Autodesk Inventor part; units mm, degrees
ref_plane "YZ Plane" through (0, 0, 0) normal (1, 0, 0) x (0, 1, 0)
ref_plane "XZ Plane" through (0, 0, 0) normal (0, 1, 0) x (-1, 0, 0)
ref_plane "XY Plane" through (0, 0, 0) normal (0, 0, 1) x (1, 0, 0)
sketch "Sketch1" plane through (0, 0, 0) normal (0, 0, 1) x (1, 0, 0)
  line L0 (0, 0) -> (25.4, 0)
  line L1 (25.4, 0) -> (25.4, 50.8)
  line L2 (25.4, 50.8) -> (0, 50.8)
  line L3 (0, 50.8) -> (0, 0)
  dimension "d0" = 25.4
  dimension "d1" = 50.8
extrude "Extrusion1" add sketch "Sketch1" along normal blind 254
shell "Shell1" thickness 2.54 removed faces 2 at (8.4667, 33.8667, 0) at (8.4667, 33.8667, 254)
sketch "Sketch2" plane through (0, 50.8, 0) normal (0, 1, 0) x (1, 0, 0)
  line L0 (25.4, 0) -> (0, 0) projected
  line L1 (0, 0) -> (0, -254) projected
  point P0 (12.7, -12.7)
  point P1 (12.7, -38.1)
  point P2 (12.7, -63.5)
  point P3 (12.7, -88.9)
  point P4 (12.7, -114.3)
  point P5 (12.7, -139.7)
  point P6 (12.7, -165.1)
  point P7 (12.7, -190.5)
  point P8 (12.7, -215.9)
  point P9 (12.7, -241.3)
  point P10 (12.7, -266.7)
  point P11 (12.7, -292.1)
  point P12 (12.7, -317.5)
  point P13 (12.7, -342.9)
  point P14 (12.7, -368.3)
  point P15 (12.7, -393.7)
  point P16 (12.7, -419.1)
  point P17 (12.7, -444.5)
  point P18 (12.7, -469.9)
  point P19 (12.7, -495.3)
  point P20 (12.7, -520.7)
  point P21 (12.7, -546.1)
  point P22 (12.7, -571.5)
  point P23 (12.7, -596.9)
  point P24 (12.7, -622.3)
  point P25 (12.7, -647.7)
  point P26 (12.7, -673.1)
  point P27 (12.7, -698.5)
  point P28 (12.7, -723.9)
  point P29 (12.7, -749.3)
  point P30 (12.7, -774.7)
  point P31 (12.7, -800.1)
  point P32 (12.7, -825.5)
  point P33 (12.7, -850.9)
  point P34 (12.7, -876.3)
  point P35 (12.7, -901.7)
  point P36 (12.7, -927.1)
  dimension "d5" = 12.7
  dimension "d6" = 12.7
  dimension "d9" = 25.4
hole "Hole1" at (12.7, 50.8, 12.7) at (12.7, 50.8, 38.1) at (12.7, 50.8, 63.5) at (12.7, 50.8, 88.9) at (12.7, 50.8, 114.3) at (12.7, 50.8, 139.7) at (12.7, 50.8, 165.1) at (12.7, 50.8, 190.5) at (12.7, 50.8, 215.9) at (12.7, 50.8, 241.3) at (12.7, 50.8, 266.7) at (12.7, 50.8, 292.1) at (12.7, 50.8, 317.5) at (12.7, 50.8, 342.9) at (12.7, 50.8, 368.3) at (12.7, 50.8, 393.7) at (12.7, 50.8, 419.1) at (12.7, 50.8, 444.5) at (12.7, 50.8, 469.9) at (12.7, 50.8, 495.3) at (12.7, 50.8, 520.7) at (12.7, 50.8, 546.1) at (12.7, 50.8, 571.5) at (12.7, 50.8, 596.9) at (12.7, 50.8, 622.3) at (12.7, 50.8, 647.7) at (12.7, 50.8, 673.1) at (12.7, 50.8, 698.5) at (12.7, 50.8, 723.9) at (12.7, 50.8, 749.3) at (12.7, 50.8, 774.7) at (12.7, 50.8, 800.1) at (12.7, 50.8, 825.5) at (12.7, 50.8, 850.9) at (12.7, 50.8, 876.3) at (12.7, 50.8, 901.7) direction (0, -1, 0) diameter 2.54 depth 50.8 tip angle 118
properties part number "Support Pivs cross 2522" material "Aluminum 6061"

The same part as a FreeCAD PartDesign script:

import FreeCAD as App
import Part
import Sketcher

V = App.Vector
Q = App.Units.Quantity


def faces_at(feature, points):
    """Names of the faces that lie closest to the given points."""
    faces = feature.Shape.Faces
    near = lambda p: min(range(len(faces)), key=lambda i: faces[i].distToShape(Part.Vertex(*p))[0])
    return sorted({f"Face{near(p) + 1}" for p in points})

doc = App.newDocument("Part")
body = doc.addObject("PartDesign::Body", "Body")

# Sketch on XY plane
sketch1 = body.newObject("Sketcher::SketchObject", "Sketch")
sketch1.AttachmentSupport = (doc.getObject("XY_Plane"), [""])
sketch1.MapMode = "FlatFace"
sketch1.addGeometry([
    Part.LineSegment(V(0, 51, 0), V(0, 0, 0)),
    Part.LineSegment(V(0, 0, 0), V(25, 0, 0)),
    Part.LineSegment(V(25, 0, 0), V(25, 51, 0)),
    Part.LineSegment(V(25, 51, 0), V(0, 51, 0)),
], False)
sketch1.addConstraint([
    Sketcher.Constraint("Coincident", 0, 2, 1, 1),
    Sketcher.Constraint("Coincident", 1, 2, 2, 1),
    Sketcher.Constraint("Coincident", 2, 2, 3, 1),
    Sketcher.Constraint("Coincident", 3, 2, 0, 1),
    Sketcher.Constraint("Vertical", 0),
    Sketcher.Constraint("Horizontal", 1),
    Sketcher.Constraint("Vertical", 2),
    Sketcher.Constraint("Horizontal", 3),
    Sketcher.Constraint("Coincident", 0, 2, -1, 1),
    Sketcher.Constraint("DistanceX", 1, 1, 1, 2, Q("1 in")),
    Sketcher.Constraint("DistanceY", 0, 2, 0, 1, Q("2 in")),
])
pad1 = body.newObject("PartDesign::Pad", "Pad")
pad1.Profile = sketch1
pad1.Length = Q("10 in")
doc.recompute()

thickness = body.newObject("PartDesign::Thickness", "Thickness")
thickness.Base = (pad1, faces_at(pad1, [(8.467, 33.867, 0), (8.467, 33.867, 254)]))
thickness.Value = Q("0.1 in")
thickness.Reversed = True
thickness.Join = "Intersection"

# Sketch on XZ plane
sketch2 = body.newObject("Sketcher::SketchObject", "Sketch001")
sketch2.AttachmentSupport = (doc.getObject("XZ_Plane"), [""])
sketch2.MapMode = "FlatFace"
sketch2.AttachmentOffset = App.Placement(V(0, 0, -2 * 25.4), App.Rotation())
sketch2.addGeometry([
    Part.Circle(V(12.7, 12.7, 0), V(0, 0, 1), 1.3),  # 0
    Part.Circle(V(12.7, 38.1, 0), V(0, 0, 1), 1.3),  # 1
    Part.Circle(V(12.7, 63.5, 0), V(0, 0, 1), 1.3),  # 2
    Part.Circle(V(12.7, 88.9, 0), V(0, 0, 1), 1.3),  # 3
    Part.Circle(V(12.7, 114.3, 0), V(0, 0, 1), 1.3),  # 4
    Part.Circle(V(12.7, 139.7, 0), V(0, 0, 1), 1.3),  # 5
    Part.Circle(V(12.7, 165.1, 0), V(0, 0, 1), 1.3),  # 6
    Part.Circle(V(12.7, 190.5, 0), V(0, 0, 1), 1.3),  # 7
    Part.Circle(V(12.7, 215.9, 0), V(0, 0, 1), 1.3),  # 8
    Part.Circle(V(12.7, 241.3, 0), V(0, 0, 1), 1.3),  # 9
    Part.Circle(V(12.7, 266.7, 0), V(0, 0, 1), 1.3),  # 10
    Part.Circle(V(12.7, 292.1, 0), V(0, 0, 1), 1.3),  # 11
    Part.Circle(V(12.7, 317.5, 0), V(0, 0, 1), 1.3),  # 12
    Part.Circle(V(12.7, 342.9, 0), V(0, 0, 1), 1.3),  # 13
    Part.Circle(V(12.7, 368.3, 0), V(0, 0, 1), 1.3),  # 14
    Part.Circle(V(12.7, 393.7, 0), V(0, 0, 1), 1.3),  # 15
    Part.Circle(V(12.7, 419.1, 0), V(0, 0, 1), 1.3),  # 16
    Part.Circle(V(12.7, 444.5, 0), V(0, 0, 1), 1.3),  # 17
    Part.Circle(V(12.7, 469.9, 0), V(0, 0, 1), 1.3),  # 18
    Part.Circle(V(12.7, 495.3, 0), V(0, 0, 1), 1.3),  # 19
    Part.Circle(V(12.7, 520.7, 0), V(0, 0, 1), 1.3),  # 20
    Part.Circle(V(12.7, 546.1, 0), V(0, 0, 1), 1.3),  # 21
    Part.Circle(V(12.7, 571.5, 0), V(0, 0, 1), 1.3),  # 22
    Part.Circle(V(12.7, 596.9, 0), V(0, 0, 1), 1.3),  # 23
    Part.Circle(V(12.7, 622.3, 0), V(0, 0, 1), 1.3),  # 24
    Part.Circle(V(12.7, 647.7, 0), V(0, 0, 1), 1.3),  # 25
    Part.Circle(V(12.7, 673.1, 0), V(0, 0, 1), 1.3),  # 26
    Part.Circle(V(12.7, 698.5, 0), V(0, 0, 1), 1.3),  # 27
    Part.Circle(V(12.7, 723.9, 0), V(0, 0, 1), 1.3),  # 28
    Part.Circle(V(12.7, 749.3, 0), V(0, 0, 1), 1.3),  # 29
    Part.Circle(V(12.7, 774.7, 0), V(0, 0, 1), 1.3),  # 30
    Part.Circle(V(12.7, 800.1, 0), V(0, 0, 1), 1.3),  # 31
    Part.Circle(V(12.7, 825.5, 0), V(0, 0, 1), 1.3),  # 32
    Part.Circle(V(12.7, 850.9, 0), V(0, 0, 1), 1.3),  # 33
    Part.Circle(V(12.7, 876.3, 0), V(0, 0, 1), 1.3),  # 34
    Part.Circle(V(12.7, 901.7, 0), V(0, 0, 1), 1.3),  # 35
], False)
sketch2.addConstraint([
    Sketcher.Constraint("Equal", 0, 1),
    Sketcher.Constraint("Equal", 1, 2),
    Sketcher.Constraint("Equal", 2, 3),
    Sketcher.Constraint("Equal", 3, 4),
    Sketcher.Constraint("Equal", 4, 5),
    Sketcher.Constraint("Equal", 5, 6),
    Sketcher.Constraint("Equal", 6, 7),
    Sketcher.Constraint("Equal", 7, 8),
    Sketcher.Constraint("Equal", 8, 9),
    Sketcher.Constraint("Equal", 9, 10),
    Sketcher.Constraint("Equal", 10, 11),
    Sketcher.Constraint("Equal", 11, 12),
    Sketcher.Constraint("Equal", 12, 13),
    Sketcher.Constraint("Equal", 13, 14),
    Sketcher.Constraint("Equal", 14, 15),
    Sketcher.Constraint("Equal", 15, 16),
    Sketcher.Constraint("Equal", 16, 17),
    Sketcher.Constraint("Equal", 17, 18),
    Sketcher.Constraint("Equal", 18, 19),
    Sketcher.Constraint("Equal", 19, 20),
    Sketcher.Constraint("Equal", 20, 21),
    Sketcher.Constraint("Equal", 21, 22),
    Sketcher.Constraint("Equal", 22, 23),
    Sketcher.Constraint("Equal", 23, 24),
    Sketcher.Constraint("Equal", 24, 25),
    Sketcher.Constraint("Equal", 25, 26),
    Sketcher.Constraint("Equal", 26, 27),
    Sketcher.Constraint("Equal", 27, 28),
    Sketcher.Constraint("Equal", 28, 29),
    Sketcher.Constraint("Equal", 29, 30),
    Sketcher.Constraint("Equal", 30, 31),
    Sketcher.Constraint("Equal", 31, 32),
    Sketcher.Constraint("Equal", 32, 33),
    Sketcher.Constraint("Equal", 33, 34),
    Sketcher.Constraint("Equal", 34, 35),
    Sketcher.Constraint("Vertical", 0, 3, 1, 3),
    Sketcher.Constraint("Vertical", 1, 3, 2, 3),
    Sketcher.Constraint("Vertical", 2, 3, 3, 3),
    Sketcher.Constraint("Vertical", 3, 3, 4, 3),
    Sketcher.Constraint("Vertical", 4, 3, 5, 3),
    Sketcher.Constraint("Vertical", 5, 3, 6, 3),
    Sketcher.Constraint("Vertical", 6, 3, 7, 3),
    Sketcher.Constraint("Vertical", 7, 3, 8, 3),
    Sketcher.Constraint("Vertical", 8, 3, 9, 3),
    Sketcher.Constraint("Vertical", 9, 3, 10, 3),
    Sketcher.Constraint("Vertical", 10, 3, 11, 3),
    Sketcher.Constraint("Vertical", 11, 3, 12, 3),
    Sketcher.Constraint("Vertical", 12, 3, 13, 3),
    Sketcher.Constraint("Vertical", 13, 3, 14, 3),
    Sketcher.Constraint("Vertical", 14, 3, 15, 3),
    Sketcher.Constraint("Vertical", 15, 3, 16, 3),
    Sketcher.Constraint("Vertical", 16, 3, 17, 3),
    Sketcher.Constraint("Vertical", 17, 3, 18, 3),
    Sketcher.Constraint("Vertical", 18, 3, 19, 3),
    Sketcher.Constraint("Vertical", 19, 3, 20, 3),
    Sketcher.Constraint("Vertical", 20, 3, 21, 3),
    Sketcher.Constraint("Vertical", 21, 3, 22, 3),
    Sketcher.Constraint("Vertical", 22, 3, 23, 3),
    Sketcher.Constraint("Vertical", 23, 3, 24, 3),
    Sketcher.Constraint("Vertical", 24, 3, 25, 3),
    Sketcher.Constraint("Vertical", 25, 3, 26, 3),
    Sketcher.Constraint("Vertical", 26, 3, 27, 3),
    Sketcher.Constraint("Vertical", 27, 3, 28, 3),
    Sketcher.Constraint("Vertical", 28, 3, 29, 3),
    Sketcher.Constraint("Vertical", 29, 3, 30, 3),
    Sketcher.Constraint("Vertical", 30, 3, 31, 3),
    Sketcher.Constraint("Vertical", 31, 3, 32, 3),
    Sketcher.Constraint("Vertical", 32, 3, 33, 3),
    Sketcher.Constraint("Vertical", 33, 3, 34, 3),
    Sketcher.Constraint("Vertical", 34, 3, 35, 3),
    Sketcher.Constraint("Diameter", 0, Q("0.1 in")),
    Sketcher.Constraint("DistanceY", 0, 3, 1, 3, Q("1 in")),
    Sketcher.Constraint("DistanceY", 1, 3, 2, 3, Q("1 in")),
    Sketcher.Constraint("DistanceY", 2, 3, 3, 3, Q("1 in")),
    Sketcher.Constraint("DistanceY", 3, 3, 4, 3, Q("1 in")),
    Sketcher.Constraint("DistanceY", 4, 3, 5, 3, Q("1 in")),
    Sketcher.Constraint("DistanceY", 5, 3, 6, 3, Q("1 in")),
    Sketcher.Constraint("DistanceY", 6, 3, 7, 3, Q("1 in")),
    Sketcher.Constraint("DistanceY", 7, 3, 8, 3, Q("1 in")),
    Sketcher.Constraint("DistanceY", 8, 3, 9, 3, Q("1 in")),
    Sketcher.Constraint("DistanceY", 9, 3, 10, 3, Q("1 in")),
    Sketcher.Constraint("DistanceY", 10, 3, 11, 3, Q("1 in")),
    Sketcher.Constraint("DistanceY", 11, 3, 12, 3, Q("1 in")),
    Sketcher.Constraint("DistanceY", 12, 3, 13, 3, Q("1 in")),
    Sketcher.Constraint("DistanceY", 13, 3, 14, 3, Q("1 in")),
    Sketcher.Constraint("DistanceY", 14, 3, 15, 3, Q("1 in")),
    Sketcher.Constraint("DistanceY", 15, 3, 16, 3, Q("1 in")),
    Sketcher.Constraint("DistanceY", 16, 3, 17, 3, Q("1 in")),
    Sketcher.Constraint("DistanceY", 17, 3, 18, 3, Q("1 in")),
    Sketcher.Constraint("DistanceY", 18, 3, 19, 3, Q("1 in")),
    Sketcher.Constraint("DistanceY", 19, 3, 20, 3, Q("1 in")),
    Sketcher.Constraint("DistanceY", 20, 3, 21, 3, Q("1 in")),
    Sketcher.Constraint("DistanceY", 21, 3, 22, 3, Q("1 in")),
    Sketcher.Constraint("DistanceY", 22, 3, 23, 3, Q("1 in")),
    Sketcher.Constraint("DistanceY", 23, 3, 24, 3, Q("1 in")),
    Sketcher.Constraint("DistanceY", 24, 3, 25, 3, Q("1 in")),
    Sketcher.Constraint("DistanceY", 25, 3, 26, 3, Q("1 in")),
    Sketcher.Constraint("DistanceY", 26, 3, 27, 3, Q("1 in")),
    Sketcher.Constraint("DistanceY", 27, 3, 28, 3, Q("1 in")),
    Sketcher.Constraint("DistanceY", 28, 3, 29, 3, Q("1 in")),
    Sketcher.Constraint("DistanceY", 29, 3, 30, 3, Q("1 in")),
    Sketcher.Constraint("DistanceY", 30, 3, 31, 3, Q("1 in")),
    Sketcher.Constraint("DistanceY", 31, 3, 32, 3, Q("1 in")),
    Sketcher.Constraint("DistanceY", 32, 3, 33, 3, Q("1 in")),
    Sketcher.Constraint("DistanceY", 33, 3, 34, 3, Q("1 in")),
    Sketcher.Constraint("DistanceY", 34, 3, 35, 3, Q("1 in")),
    Sketcher.Constraint("DistanceX", -1, 1, 0, 3, Q("0.5 in")),
    Sketcher.Constraint("DistanceY", -1, 1, 0, 3, Q("0.5 in")),
])
doc.recompute()
hole = body.newObject("PartDesign::Hole", "Hole")
hole.Profile = sketch2
hole.ThreadType = "None"
hole.Diameter = Q("0.1 in")
hole.DepthType = "Dimension"
hole.Depth = Q("2 in")
hole.DrillPoint = "Angled"
hole.DrillPointAngle = 118
hole.Reversed = True

doc.recompute()
